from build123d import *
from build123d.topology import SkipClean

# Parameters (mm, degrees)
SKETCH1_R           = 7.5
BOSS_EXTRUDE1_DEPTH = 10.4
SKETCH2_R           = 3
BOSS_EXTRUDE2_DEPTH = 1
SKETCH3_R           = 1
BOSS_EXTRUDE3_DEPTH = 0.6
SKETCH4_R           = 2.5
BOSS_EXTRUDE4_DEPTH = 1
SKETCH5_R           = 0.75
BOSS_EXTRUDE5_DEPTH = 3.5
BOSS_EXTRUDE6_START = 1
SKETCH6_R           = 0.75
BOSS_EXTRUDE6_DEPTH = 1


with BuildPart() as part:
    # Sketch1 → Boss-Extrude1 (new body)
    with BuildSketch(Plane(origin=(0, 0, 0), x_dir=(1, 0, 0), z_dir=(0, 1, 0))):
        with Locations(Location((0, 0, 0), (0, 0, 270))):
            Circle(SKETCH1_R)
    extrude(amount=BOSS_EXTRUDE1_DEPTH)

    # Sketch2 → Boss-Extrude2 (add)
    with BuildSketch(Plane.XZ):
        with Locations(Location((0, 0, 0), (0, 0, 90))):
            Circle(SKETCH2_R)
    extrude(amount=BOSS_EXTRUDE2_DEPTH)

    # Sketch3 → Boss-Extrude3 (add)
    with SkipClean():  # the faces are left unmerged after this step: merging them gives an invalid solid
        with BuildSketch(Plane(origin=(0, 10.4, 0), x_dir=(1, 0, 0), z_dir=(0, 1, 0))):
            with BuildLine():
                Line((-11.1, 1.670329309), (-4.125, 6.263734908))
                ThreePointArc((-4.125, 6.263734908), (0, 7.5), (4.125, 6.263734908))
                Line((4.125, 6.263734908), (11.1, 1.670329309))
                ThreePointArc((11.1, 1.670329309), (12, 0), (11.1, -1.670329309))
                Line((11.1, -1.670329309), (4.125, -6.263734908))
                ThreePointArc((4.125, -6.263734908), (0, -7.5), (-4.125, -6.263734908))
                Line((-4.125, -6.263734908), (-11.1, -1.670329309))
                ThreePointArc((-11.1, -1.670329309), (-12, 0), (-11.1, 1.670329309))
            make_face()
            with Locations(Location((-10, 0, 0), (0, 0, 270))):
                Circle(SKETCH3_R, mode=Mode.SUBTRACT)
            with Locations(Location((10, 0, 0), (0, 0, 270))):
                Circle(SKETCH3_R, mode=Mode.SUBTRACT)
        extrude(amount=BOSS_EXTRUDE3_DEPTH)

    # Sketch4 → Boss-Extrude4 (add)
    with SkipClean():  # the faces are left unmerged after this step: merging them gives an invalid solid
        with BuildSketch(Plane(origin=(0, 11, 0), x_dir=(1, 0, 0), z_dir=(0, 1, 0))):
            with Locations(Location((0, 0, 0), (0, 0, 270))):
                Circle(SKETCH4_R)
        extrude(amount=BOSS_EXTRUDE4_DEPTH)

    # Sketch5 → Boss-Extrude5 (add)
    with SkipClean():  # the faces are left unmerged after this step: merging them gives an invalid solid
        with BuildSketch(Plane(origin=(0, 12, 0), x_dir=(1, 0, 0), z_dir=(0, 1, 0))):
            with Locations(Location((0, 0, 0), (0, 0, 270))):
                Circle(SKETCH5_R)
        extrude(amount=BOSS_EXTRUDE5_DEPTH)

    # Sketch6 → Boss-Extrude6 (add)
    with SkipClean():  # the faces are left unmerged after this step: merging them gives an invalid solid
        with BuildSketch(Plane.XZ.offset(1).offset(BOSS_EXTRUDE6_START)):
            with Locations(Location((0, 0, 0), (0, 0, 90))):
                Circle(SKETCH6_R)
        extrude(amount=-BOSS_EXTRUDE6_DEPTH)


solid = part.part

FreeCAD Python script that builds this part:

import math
import FreeCAD as App
import Part
import Sketcher

V = App.Vector

doc = App.newDocument("Part")
body = doc.addObject("PartDesign::Body", "Body")

# Sketch on XZ plane
sketch1 = doc.addObject("Sketcher::SketchObject", "Sketch")
body.addObject(sketch1)
sketch1.AttachmentSupport = (doc.XZ_Plane, [""])
sketch1.MapMode = "FlatFace"
sketch1.addGeometry(Part.Circle(V(0, 0, 0), V(0, 0, 1), 7.5), False)
sketch1.addConstraint([
    Sketcher.Constraint("Coincident", 0, 3, -1, 1),
    Sketcher.Constraint("Diameter", 0, 15.0),
])
pad1 = doc.addObject("PartDesign::Pad", "Pad")
body.addObject(pad1)
pad1.Profile = sketch1
pad1.Length = 10.4
pad1.Reversed = True

# Sketch on XZ plane
sketch2 = doc.addObject("Sketcher::SketchObject", "Sketch001")
body.addObject(sketch2)
sketch2.AttachmentSupport = (doc.XZ_Plane, [""])
sketch2.MapMode = "FlatFace"
sketch2.addGeometry(Part.Circle(V(0, 0, 0), V(0, 0, 1), 3), False)
sketch2.addConstraint([
    Sketcher.Constraint("Coincident", 0, 3, -1, 1),
    Sketcher.Constraint("Diameter", 0, 6.0),
])
pad2 = doc.addObject("PartDesign::Pad", "Pad001")
body.addObject(pad2)
pad2.Profile = sketch2
pad2.Length = 1

# Sketch on XZ plane
sketch3 = doc.addObject("Sketcher::SketchObject", "Sketch002")
body.addObject(sketch3)
sketch3.AttachmentSupport = (doc.XZ_Plane, [""])
sketch3.MapMode = "FlatFace"
sketch3.AttachmentOffset = App.Placement(V(0, 0, -10.4), App.Rotation())
sketch3.addGeometry([
    Part.LineSegment(V(-4.125, -6.263735, 0), V(-11.1, -1.670329, 0)),  # 0
    Part.ArcOfCircle(Part.Circle(V(-10, 0, 0), V(0, 0, 1), 2), math.radians(123.367013), math.radians(236.632987)),  # 1
    Part.LineSegment(V(-11.1, 1.670329, 0), V(-4.125, 6.263735, 0)),  # 2
    Part.ArcOfCircle(Part.Circle(V(0, 0, 0), V(0, 0, 1), 7.5), math.radians(56.632987), math.radians(123.367013)),  # 3
    Part.LineSegment(V(4.125, 6.263735, 0), V(11.1, 1.670329, 0)),  # 4
    Part.ArcOfCircle(Part.Circle(V(10, 0, 0), V(0, 0, 1), 2), math.radians(-56.632987), math.radians(56.632987)),  # 5
    Part.LineSegment(V(11.1, -1.670329, 0), V(4.125, -6.263735, 0)),  # 6
    Part.ArcOfCircle(Part.Circle(V(0, 0, 0), V(0, 0, 1), 7.5), math.radians(-123.367013), math.radians(-56.632987)),  # 7
    Part.Circle(V(10, 0, 0), V(0, 0, 1), 1),  # 8
    Part.Circle(V(-10, 0, 0), V(0, 0, 1), 1),  # 9
], False)
sketch3.addConstraint([
    Sketcher.Constraint("Tangent", 0, 2, 1, 2),
    Sketcher.Constraint("Tangent", 1, 1, 2, 1),
    Sketcher.Constraint("Tangent", 2, 2, 3, 2),
    Sketcher.Constraint("Tangent", 3, 1, 4, 1),
    Sketcher.Constraint("Tangent", 4, 2, 5, 2),
    Sketcher.Constraint("Tangent", 5, 1, 6, 1),
    Sketcher.Constraint("Tangent", 6, 2, 7, 2),
    Sketcher.Constraint("Tangent", 7, 1, 0, 1),
    Sketcher.Constraint("Coincident", 3, 3, -1, 1),
    Sketcher.Constraint("Coincident", 7, 3, -1, 1),
    Sketcher.Constraint("Coincident", 8, 3, 5, 3),
    Sketcher.Constraint("Coincident", 9, 3, 1, 3),
    Sketcher.Constraint("Equal", 1, 5),
    Sketcher.Constraint("Equal", 3, 7),
    Sketcher.Constraint("Equal", 8, 9),
    Sketcher.Constraint("Symmetric", 1, 3, 5, 3, -1, 1),
    Sketcher.Constraint("PointOnObject", 1, 3, -1),
    Sketcher.Constraint("Diameter", 8, 2.0),
    Sketcher.Constraint("Radius", 1, 2.0),
    Sketcher.Constraint("Radius", 3, 7.5),
    Sketcher.Constraint("DistanceX", 1, 3, -1, 1, 10.0),
])
pad3 = doc.addObject("PartDesign::Pad", "Pad002")
body.addObject(pad3)
pad3.Profile = sketch3
pad3.Length = 0.6
pad3.Reversed = True

# Sketch on XZ plane
sketch4 = doc.addObject("Sketcher::SketchObject", "Sketch003")
body.addObject(sketch4)
sketch4.AttachmentSupport = (doc.XZ_Plane, [""])
sketch4.MapMode = "FlatFace"
sketch4.AttachmentOffset = App.Placement(V(0, 0, -11), App.Rotation())
sketch4.addGeometry(Part.Circle(V(0, 0, 0), V(0, 0, 1), 2.5), False)
sketch4.addConstraint([
    Sketcher.Constraint("Coincident", 0, 3, -1, 1),
    Sketcher.Constraint("Diameter", 0, 5.0),
])
pad4 = doc.addObject("PartDesign::Pad", "Pad003")
body.addObject(pad4)
pad4.Profile = sketch4
pad4.Length = 1
pad4.Reversed = True

# Sketch on XZ plane
sketch5 = doc.addObject("Sketcher::SketchObject", "Sketch004")
body.addObject(sketch5)
sketch5.AttachmentSupport = (doc.XZ_Plane, [""])
sketch5.MapMode = "FlatFace"
sketch5.AttachmentOffset = App.Placement(V(0, 0, -12), App.Rotation())
sketch5.addGeometry(Part.Circle(V(0, 0, 0), V(0, 0, 1), 0.75), False)
sketch5.addConstraint([
    Sketcher.Constraint("Coincident", 0, 3, -1, 1),
    Sketcher.Constraint("Diameter", 0, 1.5),
])
pad5 = doc.addObject("PartDesign::Pad", "Pad004")
body.addObject(pad5)
pad5.Profile = sketch5
pad5.Length = 3.5
pad5.Reversed = True

# Sketch on XZ plane
sketch6 = doc.addObject("Sketcher::SketchObject", "Sketch005")
body.addObject(sketch6)
sketch6.AttachmentSupport = (doc.XZ_Plane, [""])
sketch6.MapMode = "FlatFace"
sketch6.AttachmentOffset = App.Placement(V(0, 0, 2), App.Rotation())
sketch6.addGeometry(Part.Circle(V(0, 0, 0), V(0, 0, 1), 0.75), False)
sketch6.addConstraint([
    Sketcher.Constraint("Coincident", 0, 3, -1, 1),
    Sketcher.Constraint("Diameter", 0, 1.5),
])
pad6 = doc.addObject("PartDesign::Pad", "Pad005")
body.addObject(pad6)
pad6.Profile = sketch6
pad6.Length = 1
pad6.Reversed = True

doc.recompute()
